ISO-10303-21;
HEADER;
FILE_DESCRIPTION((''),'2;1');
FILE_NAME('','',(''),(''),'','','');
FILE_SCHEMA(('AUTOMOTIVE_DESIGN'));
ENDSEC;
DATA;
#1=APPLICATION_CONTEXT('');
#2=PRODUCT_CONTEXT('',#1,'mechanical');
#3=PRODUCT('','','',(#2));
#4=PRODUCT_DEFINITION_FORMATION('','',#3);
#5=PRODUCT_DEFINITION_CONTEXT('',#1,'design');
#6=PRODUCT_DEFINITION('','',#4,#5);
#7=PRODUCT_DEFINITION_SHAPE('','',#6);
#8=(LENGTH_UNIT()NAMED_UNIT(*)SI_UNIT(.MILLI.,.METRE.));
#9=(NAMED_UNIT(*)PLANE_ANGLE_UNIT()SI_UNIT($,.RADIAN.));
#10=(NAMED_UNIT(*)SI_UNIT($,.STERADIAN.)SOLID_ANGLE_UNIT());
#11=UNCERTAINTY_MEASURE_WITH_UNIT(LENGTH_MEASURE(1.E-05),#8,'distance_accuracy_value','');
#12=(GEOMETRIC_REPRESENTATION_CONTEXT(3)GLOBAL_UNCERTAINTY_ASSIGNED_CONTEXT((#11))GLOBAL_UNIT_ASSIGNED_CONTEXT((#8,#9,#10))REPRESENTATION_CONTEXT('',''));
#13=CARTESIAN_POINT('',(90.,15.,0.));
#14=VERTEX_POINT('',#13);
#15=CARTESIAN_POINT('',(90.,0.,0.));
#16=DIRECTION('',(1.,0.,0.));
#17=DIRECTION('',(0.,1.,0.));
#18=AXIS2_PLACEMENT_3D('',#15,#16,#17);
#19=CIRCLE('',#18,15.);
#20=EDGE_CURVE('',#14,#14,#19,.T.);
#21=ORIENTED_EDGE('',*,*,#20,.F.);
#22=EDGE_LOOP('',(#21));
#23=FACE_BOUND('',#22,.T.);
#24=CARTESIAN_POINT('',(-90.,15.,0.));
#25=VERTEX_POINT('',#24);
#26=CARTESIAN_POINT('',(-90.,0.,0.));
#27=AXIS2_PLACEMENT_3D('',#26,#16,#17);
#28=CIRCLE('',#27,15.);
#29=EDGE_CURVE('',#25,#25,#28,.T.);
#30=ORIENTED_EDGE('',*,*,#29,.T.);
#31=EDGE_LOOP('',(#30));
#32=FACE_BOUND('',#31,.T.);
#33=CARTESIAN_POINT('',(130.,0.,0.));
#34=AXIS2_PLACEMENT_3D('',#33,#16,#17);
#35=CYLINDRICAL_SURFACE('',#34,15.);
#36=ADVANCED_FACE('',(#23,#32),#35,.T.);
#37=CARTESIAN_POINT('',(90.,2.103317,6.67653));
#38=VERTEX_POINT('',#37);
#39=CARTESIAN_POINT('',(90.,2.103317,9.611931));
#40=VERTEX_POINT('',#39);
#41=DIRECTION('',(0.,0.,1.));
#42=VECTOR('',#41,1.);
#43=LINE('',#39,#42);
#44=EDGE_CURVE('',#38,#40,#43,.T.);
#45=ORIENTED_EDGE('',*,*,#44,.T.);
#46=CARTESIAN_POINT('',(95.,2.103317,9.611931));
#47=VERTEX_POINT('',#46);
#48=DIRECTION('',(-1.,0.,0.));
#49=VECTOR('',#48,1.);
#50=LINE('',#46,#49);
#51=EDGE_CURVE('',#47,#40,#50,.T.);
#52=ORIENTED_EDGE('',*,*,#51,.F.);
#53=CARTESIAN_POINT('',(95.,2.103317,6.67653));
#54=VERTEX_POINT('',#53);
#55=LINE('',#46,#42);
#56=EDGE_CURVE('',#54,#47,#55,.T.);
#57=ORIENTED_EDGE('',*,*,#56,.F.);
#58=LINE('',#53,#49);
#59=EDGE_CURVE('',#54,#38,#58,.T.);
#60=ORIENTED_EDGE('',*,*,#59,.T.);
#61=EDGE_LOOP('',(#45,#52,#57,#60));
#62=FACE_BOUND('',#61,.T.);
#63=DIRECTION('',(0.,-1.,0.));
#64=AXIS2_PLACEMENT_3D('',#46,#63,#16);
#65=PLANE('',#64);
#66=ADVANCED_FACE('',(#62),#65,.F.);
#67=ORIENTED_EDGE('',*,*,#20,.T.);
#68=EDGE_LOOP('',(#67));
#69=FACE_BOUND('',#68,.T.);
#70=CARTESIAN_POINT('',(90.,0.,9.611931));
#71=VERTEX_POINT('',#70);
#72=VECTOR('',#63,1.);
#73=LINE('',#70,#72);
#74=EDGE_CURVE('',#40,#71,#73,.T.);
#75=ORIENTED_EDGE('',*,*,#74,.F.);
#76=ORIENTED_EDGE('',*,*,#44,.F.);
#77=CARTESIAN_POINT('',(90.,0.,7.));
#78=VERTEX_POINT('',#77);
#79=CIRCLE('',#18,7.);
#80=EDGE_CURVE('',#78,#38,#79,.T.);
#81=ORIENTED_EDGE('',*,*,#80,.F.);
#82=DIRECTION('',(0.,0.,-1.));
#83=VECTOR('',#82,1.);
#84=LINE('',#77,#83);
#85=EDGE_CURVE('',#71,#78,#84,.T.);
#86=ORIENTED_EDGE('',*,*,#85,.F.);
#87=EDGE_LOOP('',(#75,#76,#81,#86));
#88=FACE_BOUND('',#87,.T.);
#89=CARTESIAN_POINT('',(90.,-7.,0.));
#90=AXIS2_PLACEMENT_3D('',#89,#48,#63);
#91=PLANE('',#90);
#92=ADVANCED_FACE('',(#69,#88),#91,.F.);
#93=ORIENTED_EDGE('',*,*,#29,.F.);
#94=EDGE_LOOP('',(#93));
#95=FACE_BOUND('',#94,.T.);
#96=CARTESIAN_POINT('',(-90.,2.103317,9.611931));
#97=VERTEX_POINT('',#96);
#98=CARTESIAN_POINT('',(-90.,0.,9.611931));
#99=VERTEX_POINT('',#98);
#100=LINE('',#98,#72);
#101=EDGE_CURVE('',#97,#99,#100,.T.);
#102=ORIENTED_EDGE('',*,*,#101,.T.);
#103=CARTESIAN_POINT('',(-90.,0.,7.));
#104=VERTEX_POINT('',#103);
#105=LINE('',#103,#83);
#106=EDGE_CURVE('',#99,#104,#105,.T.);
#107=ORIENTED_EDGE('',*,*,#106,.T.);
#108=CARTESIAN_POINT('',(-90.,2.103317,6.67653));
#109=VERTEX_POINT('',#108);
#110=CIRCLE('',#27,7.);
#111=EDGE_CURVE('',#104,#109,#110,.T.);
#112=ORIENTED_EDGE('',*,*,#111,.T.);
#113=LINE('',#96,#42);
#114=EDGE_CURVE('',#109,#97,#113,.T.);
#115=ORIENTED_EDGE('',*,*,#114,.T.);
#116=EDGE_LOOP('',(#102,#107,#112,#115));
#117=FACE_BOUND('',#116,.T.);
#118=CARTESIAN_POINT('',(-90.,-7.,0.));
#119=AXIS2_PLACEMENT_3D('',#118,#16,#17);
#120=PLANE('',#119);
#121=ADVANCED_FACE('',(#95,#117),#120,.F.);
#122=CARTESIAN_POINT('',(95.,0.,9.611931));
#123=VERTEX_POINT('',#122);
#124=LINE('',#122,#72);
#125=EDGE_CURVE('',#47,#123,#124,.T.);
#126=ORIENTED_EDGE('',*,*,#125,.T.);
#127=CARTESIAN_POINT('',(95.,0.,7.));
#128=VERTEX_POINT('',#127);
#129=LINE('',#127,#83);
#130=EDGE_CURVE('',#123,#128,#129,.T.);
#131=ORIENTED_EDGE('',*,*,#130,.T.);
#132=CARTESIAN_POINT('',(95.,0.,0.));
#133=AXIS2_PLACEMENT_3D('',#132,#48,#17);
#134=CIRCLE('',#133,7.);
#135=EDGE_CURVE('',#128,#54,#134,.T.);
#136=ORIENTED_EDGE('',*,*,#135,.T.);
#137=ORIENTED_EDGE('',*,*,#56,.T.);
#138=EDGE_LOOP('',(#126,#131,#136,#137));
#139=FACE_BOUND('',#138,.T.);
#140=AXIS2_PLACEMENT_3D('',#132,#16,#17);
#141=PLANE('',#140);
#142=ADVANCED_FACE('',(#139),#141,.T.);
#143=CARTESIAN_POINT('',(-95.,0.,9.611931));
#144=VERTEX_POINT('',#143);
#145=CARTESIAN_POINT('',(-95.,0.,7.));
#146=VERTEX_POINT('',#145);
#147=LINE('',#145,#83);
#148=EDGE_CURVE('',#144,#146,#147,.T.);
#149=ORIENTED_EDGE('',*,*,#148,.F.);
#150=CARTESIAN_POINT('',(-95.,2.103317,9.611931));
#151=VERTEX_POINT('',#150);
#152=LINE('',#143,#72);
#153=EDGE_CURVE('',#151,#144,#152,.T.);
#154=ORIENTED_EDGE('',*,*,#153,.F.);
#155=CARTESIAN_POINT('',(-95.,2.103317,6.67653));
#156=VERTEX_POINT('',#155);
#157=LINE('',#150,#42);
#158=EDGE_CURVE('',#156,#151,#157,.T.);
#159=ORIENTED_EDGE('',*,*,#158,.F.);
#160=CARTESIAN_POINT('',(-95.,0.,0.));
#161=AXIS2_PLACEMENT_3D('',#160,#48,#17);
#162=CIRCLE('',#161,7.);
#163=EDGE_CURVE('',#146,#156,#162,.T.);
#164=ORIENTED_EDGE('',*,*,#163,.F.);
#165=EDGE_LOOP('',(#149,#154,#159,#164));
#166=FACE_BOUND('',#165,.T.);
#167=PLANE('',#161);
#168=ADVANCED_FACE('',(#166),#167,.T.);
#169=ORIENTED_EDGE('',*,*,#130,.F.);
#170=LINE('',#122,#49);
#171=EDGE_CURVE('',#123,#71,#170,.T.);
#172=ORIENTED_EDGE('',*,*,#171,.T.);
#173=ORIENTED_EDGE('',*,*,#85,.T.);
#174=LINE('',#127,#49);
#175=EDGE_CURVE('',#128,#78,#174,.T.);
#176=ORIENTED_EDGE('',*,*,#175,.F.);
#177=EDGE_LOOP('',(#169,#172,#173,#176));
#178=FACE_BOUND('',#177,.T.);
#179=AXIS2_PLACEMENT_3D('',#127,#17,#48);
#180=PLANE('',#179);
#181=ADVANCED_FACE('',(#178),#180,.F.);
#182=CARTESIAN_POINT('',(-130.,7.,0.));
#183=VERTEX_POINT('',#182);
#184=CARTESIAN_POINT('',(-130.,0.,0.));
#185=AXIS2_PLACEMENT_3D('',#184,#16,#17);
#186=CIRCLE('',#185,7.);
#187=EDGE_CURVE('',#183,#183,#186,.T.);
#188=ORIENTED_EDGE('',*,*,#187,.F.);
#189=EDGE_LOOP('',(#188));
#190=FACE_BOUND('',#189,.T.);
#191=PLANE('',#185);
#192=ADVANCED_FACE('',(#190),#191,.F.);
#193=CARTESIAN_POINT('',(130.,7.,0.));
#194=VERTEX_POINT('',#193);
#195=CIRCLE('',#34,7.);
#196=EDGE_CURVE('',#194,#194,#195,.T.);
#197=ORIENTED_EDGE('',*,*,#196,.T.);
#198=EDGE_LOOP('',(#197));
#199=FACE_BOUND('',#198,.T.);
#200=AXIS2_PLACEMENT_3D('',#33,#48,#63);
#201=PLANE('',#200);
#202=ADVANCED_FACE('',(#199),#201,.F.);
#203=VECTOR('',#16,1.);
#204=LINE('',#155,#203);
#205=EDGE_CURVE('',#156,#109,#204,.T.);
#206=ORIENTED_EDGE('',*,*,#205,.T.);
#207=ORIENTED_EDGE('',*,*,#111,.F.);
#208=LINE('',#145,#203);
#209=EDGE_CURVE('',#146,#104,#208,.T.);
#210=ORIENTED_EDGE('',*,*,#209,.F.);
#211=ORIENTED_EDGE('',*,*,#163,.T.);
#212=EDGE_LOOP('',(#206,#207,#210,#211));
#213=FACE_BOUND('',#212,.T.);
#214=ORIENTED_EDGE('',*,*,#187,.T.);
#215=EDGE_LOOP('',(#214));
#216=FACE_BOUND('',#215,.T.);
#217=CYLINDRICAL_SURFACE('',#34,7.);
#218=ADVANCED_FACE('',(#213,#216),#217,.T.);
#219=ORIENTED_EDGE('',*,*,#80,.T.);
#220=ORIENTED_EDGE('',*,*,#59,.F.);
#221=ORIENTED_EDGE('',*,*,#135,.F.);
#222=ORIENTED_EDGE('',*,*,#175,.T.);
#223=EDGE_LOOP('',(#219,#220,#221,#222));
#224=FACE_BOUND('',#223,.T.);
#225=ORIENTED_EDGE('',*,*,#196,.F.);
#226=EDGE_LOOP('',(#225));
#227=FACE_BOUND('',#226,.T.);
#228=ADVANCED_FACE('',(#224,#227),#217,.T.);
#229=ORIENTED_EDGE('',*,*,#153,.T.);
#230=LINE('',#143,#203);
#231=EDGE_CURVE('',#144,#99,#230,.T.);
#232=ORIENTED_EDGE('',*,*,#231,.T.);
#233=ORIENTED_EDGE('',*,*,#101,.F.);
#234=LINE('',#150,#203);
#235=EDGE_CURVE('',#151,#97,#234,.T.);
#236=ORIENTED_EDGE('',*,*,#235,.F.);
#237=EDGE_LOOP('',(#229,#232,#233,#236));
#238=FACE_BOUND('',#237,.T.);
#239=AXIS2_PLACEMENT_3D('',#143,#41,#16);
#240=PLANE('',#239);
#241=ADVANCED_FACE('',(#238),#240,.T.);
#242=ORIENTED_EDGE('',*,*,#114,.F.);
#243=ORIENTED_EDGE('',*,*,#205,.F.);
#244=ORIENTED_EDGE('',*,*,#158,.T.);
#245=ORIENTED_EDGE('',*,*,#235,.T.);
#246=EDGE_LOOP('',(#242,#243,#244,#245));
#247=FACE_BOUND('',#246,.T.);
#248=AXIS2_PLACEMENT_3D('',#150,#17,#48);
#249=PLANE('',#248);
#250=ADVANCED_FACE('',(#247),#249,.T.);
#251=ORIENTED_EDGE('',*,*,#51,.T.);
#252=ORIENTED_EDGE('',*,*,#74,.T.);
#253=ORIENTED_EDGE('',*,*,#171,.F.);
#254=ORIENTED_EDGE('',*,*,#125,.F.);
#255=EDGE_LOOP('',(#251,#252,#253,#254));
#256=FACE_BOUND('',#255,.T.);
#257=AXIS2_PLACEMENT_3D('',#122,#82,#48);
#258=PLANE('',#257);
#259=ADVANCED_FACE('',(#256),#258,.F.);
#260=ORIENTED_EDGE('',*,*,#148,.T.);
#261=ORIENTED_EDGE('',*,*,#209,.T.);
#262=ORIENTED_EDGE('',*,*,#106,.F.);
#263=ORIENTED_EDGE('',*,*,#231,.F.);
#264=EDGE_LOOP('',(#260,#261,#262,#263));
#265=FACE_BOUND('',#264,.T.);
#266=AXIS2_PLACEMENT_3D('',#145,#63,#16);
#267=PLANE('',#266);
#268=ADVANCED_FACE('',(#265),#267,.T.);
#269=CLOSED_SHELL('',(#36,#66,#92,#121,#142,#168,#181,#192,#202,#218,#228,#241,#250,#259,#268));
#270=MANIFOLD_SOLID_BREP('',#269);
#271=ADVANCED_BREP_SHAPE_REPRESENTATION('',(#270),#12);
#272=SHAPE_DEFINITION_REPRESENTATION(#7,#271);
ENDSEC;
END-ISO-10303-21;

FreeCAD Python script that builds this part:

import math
import FreeCAD as App
import Part
import Sketcher
from FreeCAD import Vector
Q = App.Units.Quantity

doc = App.newDocument("Part")
body = doc.addObject("PartDesign::Body", "Body")

# Sketch on XY plane
sketch1 = body.newObject("Sketcher::SketchObject", "Sketch")
sketch1.AttachmentSupport = (doc.getObject("XY_Plane"), [""])
sketch1.MapMode = "FlatFace"
sketch1.addGeometry([
    Part.LineSegment(Vector(130, 0, 0), Vector(-130, 0, 0)),  # 0
    Part.LineSegment(Vector(-130, 0, 0), Vector(-130, -7, 0)),  # 1
    Part.LineSegment(Vector(-130, -7, 0), Vector(-90, -7, 0)),  # 2
    Part.LineSegment(Vector(-90, -7, 0), Vector(-90, -15, 0)),  # 3
    Part.LineSegment(Vector(-90, -15, 0), Vector(90, -15, 0)),  # 4
    Part.LineSegment(Vector(90, -15, 0), Vector(90, -7, 0)),  # 5
    Part.LineSegment(Vector(90, -7, 0), Vector(130, -7, 0)),  # 6
    Part.LineSegment(Vector(130, -7, 0), Vector(130, 0, 0)),  # 7
], False)
sketch1.addConstraint([
    Sketcher.Constraint("Coincident", 0, 2, 1, 1),
    Sketcher.Constraint("Coincident", 1, 2, 2, 1),
    Sketcher.Constraint("Coincident", 2, 2, 3, 1),
    Sketcher.Constraint("Coincident", 3, 2, 4, 1),
    Sketcher.Constraint("Coincident", 4, 2, 5, 1),
    Sketcher.Constraint("Coincident", 5, 2, 6, 1),
    Sketcher.Constraint("Coincident", 6, 2, 7, 1),
    Sketcher.Constraint("Coincident", 7, 2, 0, 1),
    Sketcher.Constraint("Horizontal", 0),
    Sketcher.Constraint("Vertical", 1),
    Sketcher.Constraint("Horizontal", 2),
    Sketcher.Constraint("Vertical", 3),
    Sketcher.Constraint("Horizontal", 4),
    Sketcher.Constraint("Vertical", 5),
    Sketcher.Constraint("Horizontal", 6),
    Sketcher.Constraint("Vertical", 7),
    Sketcher.Constraint("Symmetric", 0, 2, 7, 2, -1, 1),
    Sketcher.Constraint("Symmetric", 2, 2, 5, 2, -2),
    Sketcher.Constraint("DistanceX", 0, 2, 0, 1, Q("260 mm")),
    Sketcher.Constraint("DistanceX", 2, 1, 2, 2, Q("40 mm")),
    Sketcher.Constraint("DistanceY", 1, 2, 1, 1, Q("7 mm")),
    Sketcher.Constraint("DistanceY", 3, 2, 3, 1, Q("8 mm")),
])
revolution = body.newObject("PartDesign::Revolution", "Revolution")
revolution.Profile = sketch1
revolution.ReferenceAxis = (sketch1, ["H_Axis"])
revolution.Angle = 360

# Sketch on YZ plane
sketch2 = body.newObject("Sketcher::SketchObject", "Sketch001")
sketch2.AttachmentSupport = (doc.getObject("YZ_Plane"), [""])
sketch2.MapMode = "FlatFace"
sketch2.AttachmentOffset = App.Placement(Vector(0, 0, 95), App.Rotation())
sketch2.addGeometry([
    Part.LineSegment(Vector(0, 9.6, 0), Vector(0, 7, 0)),
    Part.ArcOfCircle(Part.Circle(Vector(0, 0, 0), Vector(0, 0, 1), 7), math.radians(72.51), math.radians(90)),
    Part.LineSegment(Vector(2.1, 6.7, 0), Vector(2.1, 9.6, 0)),
    Part.LineSegment(Vector(2.1, 9.6, 0), Vector(0, 9.6, 0)),
], False)
sketch2.addConstraint([
    Sketcher.Constraint("Coincident", 0, 2, 1, 2),
    Sketcher.Constraint("Coincident", 1, 1, 2, 1),
    Sketcher.Constraint("Coincident", 2, 2, 3, 1),
    Sketcher.Constraint("Coincident", 3, 2, 0, 1),
    Sketcher.Constraint("Vertical", 0),
    Sketcher.Constraint("Vertical", 2),
    Sketcher.Constraint("Horizontal", 3),
    Sketcher.Constraint("Coincident", 1, 3, -1, 1),
    Sketcher.Constraint("PointOnObject", 0, 2, -2),
    Sketcher.Constraint("Radius", 1, Q("7 mm")),
    Sketcher.Constraint("DistanceY", 2, 1, 2, 2, Q("2.9354 mm")),
    Sketcher.Constraint("DistanceY", 0, 2, 0, 1, Q("2.611931 mm")),
])
pad1 = body.newObject("PartDesign::Pad", "Pad")
pad1.Profile = sketch2
pad1.Length = 5
pad1.Reversed = True
doc.recompute()

mirrored = body.newObject("PartDesign::Mirrored", "Mirrored")
mirrored.Originals = [pad1]
mirrored.MirrorPlane = (doc.getObject("YZ_Plane"), [""])
body.Tip = mirrored

doc.recompute()
